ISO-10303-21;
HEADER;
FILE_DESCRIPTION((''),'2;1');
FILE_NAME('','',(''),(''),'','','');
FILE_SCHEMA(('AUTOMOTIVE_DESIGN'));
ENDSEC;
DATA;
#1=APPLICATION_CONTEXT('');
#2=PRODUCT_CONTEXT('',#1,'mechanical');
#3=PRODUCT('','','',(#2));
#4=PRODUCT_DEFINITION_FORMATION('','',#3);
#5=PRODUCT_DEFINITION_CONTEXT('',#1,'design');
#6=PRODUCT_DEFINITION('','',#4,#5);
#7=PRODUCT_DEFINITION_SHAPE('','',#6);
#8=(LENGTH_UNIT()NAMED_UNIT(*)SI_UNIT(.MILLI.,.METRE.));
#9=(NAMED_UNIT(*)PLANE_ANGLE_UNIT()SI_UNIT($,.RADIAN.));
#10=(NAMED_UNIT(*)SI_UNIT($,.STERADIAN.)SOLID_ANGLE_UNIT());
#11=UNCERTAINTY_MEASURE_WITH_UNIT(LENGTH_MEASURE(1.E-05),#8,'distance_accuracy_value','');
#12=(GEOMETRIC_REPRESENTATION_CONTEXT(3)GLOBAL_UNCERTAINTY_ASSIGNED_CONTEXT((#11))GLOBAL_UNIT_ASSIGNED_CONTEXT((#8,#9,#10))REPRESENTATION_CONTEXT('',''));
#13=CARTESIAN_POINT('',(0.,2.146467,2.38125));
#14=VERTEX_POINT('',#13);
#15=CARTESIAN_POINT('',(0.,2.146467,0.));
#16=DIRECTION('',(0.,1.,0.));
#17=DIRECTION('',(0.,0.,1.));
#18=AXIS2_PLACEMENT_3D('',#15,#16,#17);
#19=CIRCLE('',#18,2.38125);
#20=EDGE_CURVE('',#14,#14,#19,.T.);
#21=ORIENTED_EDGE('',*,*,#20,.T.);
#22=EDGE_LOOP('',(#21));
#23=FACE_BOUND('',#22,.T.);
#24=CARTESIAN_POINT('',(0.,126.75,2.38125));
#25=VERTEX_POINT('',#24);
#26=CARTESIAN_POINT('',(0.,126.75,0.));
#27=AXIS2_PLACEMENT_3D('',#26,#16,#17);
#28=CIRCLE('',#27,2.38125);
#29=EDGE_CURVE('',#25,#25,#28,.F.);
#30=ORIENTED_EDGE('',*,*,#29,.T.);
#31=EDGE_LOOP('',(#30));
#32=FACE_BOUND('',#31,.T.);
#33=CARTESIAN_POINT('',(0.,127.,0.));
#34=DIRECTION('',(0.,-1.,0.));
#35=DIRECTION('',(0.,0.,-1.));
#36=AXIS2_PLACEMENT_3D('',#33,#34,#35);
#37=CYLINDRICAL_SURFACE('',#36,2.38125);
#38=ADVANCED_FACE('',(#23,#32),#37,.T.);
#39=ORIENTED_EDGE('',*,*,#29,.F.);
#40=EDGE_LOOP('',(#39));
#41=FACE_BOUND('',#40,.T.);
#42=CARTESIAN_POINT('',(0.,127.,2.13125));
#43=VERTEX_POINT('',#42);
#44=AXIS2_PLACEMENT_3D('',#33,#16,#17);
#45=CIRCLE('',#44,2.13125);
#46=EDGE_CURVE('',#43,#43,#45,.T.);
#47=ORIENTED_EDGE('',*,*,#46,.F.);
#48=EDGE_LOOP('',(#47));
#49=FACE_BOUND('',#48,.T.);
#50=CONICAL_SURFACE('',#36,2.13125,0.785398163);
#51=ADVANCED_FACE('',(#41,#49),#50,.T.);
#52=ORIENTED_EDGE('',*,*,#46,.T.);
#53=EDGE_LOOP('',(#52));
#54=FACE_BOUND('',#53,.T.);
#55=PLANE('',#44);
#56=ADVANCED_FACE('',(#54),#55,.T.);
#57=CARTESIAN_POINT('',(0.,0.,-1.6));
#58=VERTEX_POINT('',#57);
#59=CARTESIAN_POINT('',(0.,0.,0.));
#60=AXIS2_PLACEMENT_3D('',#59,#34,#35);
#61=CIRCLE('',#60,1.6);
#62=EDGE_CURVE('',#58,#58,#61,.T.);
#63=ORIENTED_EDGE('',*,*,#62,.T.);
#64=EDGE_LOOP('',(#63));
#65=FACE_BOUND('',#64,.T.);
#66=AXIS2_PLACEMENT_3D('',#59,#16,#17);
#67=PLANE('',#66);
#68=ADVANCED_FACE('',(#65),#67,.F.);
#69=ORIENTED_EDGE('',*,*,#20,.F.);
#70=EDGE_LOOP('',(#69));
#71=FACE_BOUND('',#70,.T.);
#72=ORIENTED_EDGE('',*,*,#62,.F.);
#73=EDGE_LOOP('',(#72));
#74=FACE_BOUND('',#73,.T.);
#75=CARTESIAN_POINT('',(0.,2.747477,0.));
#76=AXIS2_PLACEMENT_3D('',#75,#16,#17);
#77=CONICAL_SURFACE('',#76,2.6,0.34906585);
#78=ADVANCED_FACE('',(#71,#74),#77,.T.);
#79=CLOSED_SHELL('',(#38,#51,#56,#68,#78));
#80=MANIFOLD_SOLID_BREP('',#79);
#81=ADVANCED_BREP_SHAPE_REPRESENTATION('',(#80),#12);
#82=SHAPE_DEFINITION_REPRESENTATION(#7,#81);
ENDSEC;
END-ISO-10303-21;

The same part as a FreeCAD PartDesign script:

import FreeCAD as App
import Part
import Sketcher

V = App.Vector
Q = App.Units.Quantity


def edges_at(feature, points):
    """Names of the edges that pass closest to the given points."""
    edges = feature.Shape.Edges
    near = lambda p: min(range(len(edges)), key=lambda i: edges[i].distToShape(Part.Vertex(*p))[0])
    return sorted({f"Edge{near(p) + 1}" for p in points})


def add_polygon(sketch, points):
    """Adds a closed chain of lines whose ends are joined by coincident constraints."""
    first, n = sketch.GeometryCount, len(points)
    for a, b in zip(points, points[1:] + points[:1]):
        sketch.addGeometry(Part.LineSegment(App.Vector(*a, 0), App.Vector(*b, 0)), False)
    for i in range(n):
        sketch.addConstraint(Sketcher.Constraint("Coincident", first + i, 2, first + (i + 1) % n, 1))

doc = App.newDocument("Part")
body = doc.addObject("PartDesign::Body", "Body")

sketch1 = doc.addObject("Sketcher::SketchObject", "Sketch")
body.addObject(sketch1)
sketch1.AttachmentSupport = (doc.XZ_Plane, [""])
sketch1.MapMode = "FlatFace"
sketch1.addGeometry(Part.Circle(V(0, 0, 0), V(0, 0, 1), 2.38125), False)
sketch1.addConstraint(Sketcher.Constraint("Coincident", 0, 3, -1, 1))
sketch1.addConstraint(Sketcher.Constraint("Diameter", 0, Q("0.1875 in")))
pad1 = doc.addObject("PartDesign::Pad", "Pad")
body.addObject(pad1)
pad1.Profile = sketch1
pad1.Length = Q("5 in")
pad1.Reversed = True
doc.recompute()

chamfer = doc.addObject("PartDesign::Chamfer", "Chamfer")
body.addObject(chamfer)
chamfer.Base = (pad1, edges_at(pad1, [(-2.381, 0, 0), (-2.381, 127, 0)]))
chamfer.Size = 0.25

sketch2 = doc.addObject("Sketcher::SketchObject", "Sketch001")
body.addObject(sketch2)
sketch2.AttachmentSupport = (doc.YZ_Plane, [""])
sketch2.MapMode = "FlatFace"
add_polygon(sketch2, [(2.747477, -2.6), (0, -1.6), (0, -2.6)])
sketch2.addConstraint(Sketcher.Constraint("Vertical", 1))
sketch2.addConstraint(Sketcher.Constraint("Horizontal", 2))
sketch2.addConstraint(Sketcher.Constraint("PointOnObject", 0, 2, -2))
sketch2.addConstraint(Sketcher.Constraint("Angle", 0, Q("160 deg")))
sketch2.addConstraint(Sketcher.Constraint("DistanceY", 1, 2, 1, 1, 1.0))
sketch2.addConstraint(Sketcher.Constraint("DistanceY", 0, 2, -1, 1, 1.6))
groove = doc.addObject("PartDesign::Groove", "Groove")
body.addObject(groove)
groove.Profile = sketch2
groove.ReferenceAxis = (sketch2, ["H_Axis"])
groove.Angle = 360

doc.recompute()
